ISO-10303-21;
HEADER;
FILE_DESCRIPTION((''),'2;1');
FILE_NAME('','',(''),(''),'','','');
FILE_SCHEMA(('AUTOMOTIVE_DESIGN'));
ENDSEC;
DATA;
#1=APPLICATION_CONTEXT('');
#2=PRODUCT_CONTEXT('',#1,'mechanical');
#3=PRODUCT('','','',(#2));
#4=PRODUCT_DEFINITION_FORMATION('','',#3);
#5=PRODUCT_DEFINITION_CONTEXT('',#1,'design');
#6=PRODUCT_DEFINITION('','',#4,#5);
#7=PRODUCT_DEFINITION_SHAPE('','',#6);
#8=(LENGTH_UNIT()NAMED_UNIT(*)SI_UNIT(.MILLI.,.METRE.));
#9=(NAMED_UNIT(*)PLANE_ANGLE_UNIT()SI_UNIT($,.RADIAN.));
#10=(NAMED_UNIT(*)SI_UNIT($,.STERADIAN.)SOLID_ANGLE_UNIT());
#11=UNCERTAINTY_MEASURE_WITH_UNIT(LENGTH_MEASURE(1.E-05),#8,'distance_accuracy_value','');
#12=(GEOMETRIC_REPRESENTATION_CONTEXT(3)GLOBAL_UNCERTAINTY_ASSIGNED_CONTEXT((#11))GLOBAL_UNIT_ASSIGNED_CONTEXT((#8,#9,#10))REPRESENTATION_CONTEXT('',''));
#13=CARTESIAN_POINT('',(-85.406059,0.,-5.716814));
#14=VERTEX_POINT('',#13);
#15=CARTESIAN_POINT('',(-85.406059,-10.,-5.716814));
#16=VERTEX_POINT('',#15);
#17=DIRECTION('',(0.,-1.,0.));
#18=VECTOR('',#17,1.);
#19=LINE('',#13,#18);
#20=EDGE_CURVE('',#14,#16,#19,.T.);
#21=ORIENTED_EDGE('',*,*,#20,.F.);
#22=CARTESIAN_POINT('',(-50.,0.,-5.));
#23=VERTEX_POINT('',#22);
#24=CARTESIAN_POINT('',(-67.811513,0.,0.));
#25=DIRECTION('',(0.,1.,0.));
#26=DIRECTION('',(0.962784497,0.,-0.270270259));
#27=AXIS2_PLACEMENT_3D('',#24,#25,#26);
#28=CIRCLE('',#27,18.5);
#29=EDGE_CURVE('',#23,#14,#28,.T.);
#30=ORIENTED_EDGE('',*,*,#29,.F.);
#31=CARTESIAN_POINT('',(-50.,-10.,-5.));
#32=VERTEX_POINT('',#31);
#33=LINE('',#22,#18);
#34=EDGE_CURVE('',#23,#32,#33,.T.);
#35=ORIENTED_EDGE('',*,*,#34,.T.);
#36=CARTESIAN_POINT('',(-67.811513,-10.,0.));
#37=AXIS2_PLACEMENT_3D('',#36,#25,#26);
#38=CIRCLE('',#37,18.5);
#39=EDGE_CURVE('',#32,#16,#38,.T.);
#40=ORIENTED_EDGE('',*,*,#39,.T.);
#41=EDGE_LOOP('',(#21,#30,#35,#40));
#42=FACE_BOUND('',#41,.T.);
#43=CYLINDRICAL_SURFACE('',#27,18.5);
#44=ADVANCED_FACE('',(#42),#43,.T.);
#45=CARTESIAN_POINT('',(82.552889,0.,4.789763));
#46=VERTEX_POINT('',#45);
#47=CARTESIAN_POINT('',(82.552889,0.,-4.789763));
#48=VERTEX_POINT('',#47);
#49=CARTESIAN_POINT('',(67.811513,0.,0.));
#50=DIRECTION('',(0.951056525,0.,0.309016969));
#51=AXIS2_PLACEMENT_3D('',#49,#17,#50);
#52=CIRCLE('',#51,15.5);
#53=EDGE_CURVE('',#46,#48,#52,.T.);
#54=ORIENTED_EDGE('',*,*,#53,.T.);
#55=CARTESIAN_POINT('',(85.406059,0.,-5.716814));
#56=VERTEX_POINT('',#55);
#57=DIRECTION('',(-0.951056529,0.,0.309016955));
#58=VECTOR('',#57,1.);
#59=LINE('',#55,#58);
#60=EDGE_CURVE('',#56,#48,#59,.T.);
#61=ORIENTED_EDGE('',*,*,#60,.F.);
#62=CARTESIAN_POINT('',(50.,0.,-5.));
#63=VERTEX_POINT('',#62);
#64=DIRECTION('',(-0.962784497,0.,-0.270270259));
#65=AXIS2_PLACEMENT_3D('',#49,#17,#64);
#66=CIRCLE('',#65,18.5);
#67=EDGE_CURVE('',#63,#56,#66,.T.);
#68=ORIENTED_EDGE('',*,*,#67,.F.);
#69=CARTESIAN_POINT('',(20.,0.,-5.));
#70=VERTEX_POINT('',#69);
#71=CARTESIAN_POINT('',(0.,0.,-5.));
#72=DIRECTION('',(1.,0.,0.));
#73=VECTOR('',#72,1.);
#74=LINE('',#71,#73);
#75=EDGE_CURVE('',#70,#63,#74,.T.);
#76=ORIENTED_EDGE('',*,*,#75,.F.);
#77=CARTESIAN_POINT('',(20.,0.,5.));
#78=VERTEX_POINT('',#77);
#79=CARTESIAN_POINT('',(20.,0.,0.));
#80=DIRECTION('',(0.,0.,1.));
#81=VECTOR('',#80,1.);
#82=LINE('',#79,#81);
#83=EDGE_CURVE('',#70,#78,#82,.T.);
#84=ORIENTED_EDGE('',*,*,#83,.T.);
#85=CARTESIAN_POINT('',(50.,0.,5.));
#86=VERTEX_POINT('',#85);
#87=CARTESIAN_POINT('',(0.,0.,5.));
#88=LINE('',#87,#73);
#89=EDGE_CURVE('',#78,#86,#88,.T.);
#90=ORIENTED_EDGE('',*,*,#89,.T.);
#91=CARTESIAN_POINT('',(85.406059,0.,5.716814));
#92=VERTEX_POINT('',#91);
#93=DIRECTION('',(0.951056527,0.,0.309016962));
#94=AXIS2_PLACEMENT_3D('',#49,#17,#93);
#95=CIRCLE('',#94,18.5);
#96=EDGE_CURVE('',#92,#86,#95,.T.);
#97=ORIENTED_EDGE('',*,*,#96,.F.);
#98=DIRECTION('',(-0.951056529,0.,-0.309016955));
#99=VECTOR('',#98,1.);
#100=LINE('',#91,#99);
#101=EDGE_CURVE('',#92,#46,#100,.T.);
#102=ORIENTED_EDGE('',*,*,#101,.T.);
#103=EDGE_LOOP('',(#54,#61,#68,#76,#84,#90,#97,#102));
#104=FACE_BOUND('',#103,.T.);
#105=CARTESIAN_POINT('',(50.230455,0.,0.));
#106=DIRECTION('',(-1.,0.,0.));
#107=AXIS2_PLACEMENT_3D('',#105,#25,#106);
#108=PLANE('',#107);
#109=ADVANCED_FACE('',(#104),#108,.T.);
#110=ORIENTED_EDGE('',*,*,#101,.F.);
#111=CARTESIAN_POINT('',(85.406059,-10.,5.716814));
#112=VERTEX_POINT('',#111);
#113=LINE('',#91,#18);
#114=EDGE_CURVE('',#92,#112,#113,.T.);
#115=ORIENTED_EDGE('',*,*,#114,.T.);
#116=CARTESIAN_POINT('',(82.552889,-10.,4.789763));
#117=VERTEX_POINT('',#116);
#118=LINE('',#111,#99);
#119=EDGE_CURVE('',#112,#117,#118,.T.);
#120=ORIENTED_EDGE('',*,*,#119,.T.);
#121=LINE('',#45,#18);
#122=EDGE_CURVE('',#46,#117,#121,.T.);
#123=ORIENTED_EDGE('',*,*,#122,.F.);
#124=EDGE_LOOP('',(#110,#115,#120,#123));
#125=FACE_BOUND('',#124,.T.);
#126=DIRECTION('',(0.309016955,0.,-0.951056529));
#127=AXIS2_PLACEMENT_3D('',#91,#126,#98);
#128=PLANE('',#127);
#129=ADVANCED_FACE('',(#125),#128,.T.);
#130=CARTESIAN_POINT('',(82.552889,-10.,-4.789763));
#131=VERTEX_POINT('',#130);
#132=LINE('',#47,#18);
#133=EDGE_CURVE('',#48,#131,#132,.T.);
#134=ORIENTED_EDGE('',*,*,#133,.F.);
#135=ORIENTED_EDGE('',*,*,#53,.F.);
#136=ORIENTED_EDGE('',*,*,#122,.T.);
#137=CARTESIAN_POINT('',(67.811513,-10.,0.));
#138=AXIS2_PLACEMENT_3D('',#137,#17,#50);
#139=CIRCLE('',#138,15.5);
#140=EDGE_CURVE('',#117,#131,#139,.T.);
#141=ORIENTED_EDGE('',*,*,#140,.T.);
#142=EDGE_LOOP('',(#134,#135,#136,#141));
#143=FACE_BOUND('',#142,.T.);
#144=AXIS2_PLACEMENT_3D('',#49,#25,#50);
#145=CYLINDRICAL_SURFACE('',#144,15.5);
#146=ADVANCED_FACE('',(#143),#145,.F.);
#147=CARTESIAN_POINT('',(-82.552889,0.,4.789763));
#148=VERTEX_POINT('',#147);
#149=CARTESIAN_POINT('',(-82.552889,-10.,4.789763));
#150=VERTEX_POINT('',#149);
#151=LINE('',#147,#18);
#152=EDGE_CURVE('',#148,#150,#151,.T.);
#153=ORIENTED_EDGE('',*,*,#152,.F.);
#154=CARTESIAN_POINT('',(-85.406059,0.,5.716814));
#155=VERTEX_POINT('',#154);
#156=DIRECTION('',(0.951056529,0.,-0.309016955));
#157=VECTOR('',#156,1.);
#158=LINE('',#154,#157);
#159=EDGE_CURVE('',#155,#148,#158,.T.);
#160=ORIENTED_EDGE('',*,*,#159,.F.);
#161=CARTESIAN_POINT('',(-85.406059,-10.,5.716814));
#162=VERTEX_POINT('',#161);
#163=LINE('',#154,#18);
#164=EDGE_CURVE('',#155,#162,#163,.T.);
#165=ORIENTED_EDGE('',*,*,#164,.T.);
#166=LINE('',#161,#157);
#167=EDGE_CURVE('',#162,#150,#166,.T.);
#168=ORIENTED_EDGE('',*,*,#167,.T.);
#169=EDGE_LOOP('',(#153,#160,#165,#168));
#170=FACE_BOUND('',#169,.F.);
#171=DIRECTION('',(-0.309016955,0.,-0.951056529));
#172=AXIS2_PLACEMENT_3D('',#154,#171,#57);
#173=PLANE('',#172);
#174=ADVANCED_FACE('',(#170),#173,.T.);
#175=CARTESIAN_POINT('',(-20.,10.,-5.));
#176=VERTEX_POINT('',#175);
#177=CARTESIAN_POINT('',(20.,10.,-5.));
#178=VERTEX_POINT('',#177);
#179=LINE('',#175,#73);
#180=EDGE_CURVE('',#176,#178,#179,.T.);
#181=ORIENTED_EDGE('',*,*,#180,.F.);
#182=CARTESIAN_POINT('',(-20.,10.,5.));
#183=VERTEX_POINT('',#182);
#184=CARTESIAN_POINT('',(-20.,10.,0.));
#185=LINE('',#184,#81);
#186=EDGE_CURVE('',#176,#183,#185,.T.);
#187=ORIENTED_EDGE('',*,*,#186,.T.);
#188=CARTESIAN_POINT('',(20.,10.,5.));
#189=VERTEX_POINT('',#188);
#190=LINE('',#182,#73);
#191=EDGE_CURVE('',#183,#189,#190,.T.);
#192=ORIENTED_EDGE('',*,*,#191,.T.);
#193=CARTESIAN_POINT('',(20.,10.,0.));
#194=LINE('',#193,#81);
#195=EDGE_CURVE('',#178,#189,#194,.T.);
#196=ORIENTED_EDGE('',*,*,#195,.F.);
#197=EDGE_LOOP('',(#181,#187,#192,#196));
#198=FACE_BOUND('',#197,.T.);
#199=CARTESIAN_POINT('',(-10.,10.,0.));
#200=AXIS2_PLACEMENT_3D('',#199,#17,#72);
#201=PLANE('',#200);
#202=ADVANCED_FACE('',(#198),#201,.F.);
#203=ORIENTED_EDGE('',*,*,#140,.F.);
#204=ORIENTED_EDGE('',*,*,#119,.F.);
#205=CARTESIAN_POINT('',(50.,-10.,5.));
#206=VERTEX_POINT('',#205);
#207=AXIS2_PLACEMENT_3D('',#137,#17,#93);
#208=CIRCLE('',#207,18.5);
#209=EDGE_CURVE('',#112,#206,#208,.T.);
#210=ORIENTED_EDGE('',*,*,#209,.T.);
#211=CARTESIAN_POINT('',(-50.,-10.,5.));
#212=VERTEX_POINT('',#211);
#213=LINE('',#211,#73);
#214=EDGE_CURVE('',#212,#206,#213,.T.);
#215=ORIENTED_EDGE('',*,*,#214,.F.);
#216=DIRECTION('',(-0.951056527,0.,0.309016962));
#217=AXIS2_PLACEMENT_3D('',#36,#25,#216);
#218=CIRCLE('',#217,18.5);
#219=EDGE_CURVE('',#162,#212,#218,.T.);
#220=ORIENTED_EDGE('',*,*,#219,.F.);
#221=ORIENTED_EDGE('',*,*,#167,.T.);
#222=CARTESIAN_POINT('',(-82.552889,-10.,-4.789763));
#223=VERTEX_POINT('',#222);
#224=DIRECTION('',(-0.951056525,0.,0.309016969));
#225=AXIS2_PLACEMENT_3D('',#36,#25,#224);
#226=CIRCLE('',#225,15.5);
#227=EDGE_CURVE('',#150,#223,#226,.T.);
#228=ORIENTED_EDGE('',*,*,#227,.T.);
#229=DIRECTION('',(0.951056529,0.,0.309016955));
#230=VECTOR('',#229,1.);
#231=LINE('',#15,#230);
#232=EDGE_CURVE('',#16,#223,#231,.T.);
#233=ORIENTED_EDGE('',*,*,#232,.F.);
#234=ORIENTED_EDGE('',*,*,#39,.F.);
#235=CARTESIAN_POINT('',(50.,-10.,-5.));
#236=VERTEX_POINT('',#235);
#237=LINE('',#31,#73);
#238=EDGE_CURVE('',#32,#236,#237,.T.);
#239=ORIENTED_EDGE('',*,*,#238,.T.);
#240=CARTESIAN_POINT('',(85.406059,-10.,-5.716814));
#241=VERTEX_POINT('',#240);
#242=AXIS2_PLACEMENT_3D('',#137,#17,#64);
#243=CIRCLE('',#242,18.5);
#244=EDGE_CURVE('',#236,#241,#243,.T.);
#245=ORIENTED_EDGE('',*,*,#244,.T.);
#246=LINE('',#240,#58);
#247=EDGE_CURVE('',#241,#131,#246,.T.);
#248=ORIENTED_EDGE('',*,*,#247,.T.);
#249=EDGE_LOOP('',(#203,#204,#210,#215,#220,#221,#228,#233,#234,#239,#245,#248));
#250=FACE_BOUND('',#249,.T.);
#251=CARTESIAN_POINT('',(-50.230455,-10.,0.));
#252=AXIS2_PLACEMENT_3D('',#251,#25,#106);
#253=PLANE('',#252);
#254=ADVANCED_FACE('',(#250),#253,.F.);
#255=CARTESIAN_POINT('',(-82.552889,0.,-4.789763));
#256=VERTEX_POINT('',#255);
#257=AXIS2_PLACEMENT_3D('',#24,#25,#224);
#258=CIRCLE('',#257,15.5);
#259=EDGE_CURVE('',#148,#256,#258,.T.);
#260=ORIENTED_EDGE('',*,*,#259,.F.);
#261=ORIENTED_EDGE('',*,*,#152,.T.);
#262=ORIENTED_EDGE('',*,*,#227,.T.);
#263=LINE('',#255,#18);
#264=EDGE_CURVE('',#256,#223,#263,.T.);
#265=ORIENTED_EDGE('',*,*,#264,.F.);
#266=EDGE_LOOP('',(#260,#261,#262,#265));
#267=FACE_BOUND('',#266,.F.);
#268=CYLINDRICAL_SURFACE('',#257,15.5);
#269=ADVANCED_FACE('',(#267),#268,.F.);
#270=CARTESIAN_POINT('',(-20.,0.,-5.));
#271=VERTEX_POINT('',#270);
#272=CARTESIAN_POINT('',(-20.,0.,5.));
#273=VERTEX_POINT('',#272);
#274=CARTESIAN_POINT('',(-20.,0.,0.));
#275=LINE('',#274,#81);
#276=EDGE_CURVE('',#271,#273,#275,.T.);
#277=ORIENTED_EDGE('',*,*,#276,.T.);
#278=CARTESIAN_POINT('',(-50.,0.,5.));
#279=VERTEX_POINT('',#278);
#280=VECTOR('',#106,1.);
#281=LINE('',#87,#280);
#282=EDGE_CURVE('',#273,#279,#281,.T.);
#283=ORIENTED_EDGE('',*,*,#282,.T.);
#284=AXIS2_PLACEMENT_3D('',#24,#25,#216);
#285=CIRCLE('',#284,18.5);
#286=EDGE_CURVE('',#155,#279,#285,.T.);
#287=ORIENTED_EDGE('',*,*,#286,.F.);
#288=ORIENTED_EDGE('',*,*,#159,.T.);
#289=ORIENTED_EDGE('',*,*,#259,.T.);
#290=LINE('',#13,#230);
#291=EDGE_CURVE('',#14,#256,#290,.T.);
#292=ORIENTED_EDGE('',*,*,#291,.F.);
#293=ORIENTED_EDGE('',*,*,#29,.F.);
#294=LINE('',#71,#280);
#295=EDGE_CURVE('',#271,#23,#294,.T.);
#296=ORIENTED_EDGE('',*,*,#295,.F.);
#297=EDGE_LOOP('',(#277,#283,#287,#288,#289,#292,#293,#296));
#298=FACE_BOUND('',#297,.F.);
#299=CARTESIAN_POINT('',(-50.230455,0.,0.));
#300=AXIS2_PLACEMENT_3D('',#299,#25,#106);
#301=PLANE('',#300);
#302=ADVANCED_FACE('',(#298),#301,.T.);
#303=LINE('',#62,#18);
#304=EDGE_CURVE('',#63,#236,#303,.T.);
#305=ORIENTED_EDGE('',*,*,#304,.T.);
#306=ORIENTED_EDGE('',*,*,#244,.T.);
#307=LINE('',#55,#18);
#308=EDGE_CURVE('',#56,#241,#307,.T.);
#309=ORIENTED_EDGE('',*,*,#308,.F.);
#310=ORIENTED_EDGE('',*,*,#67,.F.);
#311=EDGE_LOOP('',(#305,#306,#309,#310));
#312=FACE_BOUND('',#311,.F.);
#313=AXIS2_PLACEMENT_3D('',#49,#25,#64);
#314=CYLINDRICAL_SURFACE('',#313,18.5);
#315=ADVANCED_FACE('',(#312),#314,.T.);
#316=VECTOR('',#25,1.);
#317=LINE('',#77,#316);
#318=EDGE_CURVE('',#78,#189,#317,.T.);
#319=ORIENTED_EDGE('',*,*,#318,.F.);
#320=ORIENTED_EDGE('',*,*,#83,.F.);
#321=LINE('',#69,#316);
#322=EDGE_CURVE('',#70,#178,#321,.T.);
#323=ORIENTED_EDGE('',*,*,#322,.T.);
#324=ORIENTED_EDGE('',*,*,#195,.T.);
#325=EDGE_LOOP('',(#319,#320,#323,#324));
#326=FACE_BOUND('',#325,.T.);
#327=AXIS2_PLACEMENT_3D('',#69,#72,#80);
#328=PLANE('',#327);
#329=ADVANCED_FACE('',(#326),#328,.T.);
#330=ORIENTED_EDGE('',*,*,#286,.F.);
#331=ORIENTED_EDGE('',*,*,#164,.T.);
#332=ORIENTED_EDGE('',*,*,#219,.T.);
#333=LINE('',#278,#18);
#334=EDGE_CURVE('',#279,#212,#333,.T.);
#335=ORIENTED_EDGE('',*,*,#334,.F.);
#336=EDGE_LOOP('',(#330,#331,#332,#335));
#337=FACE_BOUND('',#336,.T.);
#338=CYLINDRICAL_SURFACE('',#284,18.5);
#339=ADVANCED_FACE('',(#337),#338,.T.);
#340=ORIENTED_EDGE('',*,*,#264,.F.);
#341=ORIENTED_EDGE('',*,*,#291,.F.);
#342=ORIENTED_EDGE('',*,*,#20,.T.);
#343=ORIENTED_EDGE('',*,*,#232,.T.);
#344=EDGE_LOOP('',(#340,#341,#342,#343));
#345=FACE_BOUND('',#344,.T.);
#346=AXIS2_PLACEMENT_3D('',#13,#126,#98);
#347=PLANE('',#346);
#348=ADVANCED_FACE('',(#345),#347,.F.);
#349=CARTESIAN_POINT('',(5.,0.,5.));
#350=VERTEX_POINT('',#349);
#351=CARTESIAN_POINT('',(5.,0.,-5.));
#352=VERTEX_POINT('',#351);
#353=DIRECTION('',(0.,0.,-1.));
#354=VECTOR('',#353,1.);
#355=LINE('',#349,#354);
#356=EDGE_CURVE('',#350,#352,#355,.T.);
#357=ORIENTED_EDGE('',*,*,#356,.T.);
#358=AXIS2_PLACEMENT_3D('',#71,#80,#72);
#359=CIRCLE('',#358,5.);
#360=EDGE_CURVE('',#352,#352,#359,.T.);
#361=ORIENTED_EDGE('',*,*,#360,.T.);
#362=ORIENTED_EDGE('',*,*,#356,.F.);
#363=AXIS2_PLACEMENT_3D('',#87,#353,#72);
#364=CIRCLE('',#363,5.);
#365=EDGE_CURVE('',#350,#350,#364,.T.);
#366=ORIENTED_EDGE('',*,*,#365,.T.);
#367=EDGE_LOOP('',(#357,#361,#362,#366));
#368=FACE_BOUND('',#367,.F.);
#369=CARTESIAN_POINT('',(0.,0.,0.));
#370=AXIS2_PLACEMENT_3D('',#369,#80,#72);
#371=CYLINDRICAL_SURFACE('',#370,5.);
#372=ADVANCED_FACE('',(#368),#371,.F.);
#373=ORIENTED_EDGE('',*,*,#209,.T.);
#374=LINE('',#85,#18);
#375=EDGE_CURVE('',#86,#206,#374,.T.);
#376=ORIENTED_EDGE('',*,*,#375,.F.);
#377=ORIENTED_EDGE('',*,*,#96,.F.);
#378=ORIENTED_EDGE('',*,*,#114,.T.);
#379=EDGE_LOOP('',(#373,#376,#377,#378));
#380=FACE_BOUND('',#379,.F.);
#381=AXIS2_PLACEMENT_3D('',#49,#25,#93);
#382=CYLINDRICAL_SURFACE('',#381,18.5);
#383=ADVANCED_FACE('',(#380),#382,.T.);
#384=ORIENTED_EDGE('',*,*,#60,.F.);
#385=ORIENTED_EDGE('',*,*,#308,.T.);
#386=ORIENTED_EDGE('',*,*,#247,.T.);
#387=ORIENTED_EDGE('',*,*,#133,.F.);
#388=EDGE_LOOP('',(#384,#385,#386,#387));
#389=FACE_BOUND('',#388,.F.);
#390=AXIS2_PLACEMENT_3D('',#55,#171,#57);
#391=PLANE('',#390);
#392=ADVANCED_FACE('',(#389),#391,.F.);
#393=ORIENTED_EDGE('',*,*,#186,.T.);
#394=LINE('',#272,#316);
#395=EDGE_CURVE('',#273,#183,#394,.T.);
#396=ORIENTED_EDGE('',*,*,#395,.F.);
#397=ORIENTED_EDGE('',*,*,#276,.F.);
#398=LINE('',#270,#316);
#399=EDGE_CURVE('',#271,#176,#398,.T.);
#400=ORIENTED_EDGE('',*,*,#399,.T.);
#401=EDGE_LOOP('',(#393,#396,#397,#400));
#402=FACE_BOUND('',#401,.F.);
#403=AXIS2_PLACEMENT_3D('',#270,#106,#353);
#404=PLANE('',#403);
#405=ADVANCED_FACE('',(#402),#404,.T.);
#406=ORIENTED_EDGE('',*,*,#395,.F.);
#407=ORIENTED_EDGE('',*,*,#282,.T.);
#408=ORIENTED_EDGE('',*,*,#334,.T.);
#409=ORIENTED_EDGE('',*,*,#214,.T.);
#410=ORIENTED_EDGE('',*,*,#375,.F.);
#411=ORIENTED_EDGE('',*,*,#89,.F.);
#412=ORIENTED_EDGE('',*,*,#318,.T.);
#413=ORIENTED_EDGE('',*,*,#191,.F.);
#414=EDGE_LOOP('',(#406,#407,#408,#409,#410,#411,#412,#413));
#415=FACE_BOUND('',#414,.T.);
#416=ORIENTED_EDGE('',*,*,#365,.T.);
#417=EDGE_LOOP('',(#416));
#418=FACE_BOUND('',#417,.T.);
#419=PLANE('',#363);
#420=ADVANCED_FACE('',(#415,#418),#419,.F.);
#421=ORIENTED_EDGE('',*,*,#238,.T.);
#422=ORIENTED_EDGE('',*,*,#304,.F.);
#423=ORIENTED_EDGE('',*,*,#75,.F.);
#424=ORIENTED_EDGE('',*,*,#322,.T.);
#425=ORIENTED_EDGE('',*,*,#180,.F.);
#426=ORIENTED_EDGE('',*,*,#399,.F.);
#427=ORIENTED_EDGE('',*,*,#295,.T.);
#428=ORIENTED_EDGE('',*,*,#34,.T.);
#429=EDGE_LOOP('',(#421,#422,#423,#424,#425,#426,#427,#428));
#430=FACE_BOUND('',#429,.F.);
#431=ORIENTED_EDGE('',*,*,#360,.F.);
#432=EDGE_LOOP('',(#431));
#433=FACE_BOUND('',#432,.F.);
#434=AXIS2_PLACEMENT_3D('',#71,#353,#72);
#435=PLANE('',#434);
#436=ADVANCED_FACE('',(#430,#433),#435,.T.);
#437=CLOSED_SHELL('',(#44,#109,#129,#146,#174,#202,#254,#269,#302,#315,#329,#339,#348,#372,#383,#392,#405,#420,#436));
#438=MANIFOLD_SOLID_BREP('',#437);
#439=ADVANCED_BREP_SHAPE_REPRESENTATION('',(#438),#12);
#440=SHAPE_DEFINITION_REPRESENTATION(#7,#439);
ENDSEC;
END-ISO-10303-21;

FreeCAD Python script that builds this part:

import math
import FreeCAD as App
import Part
import Sketcher
from FreeCAD import Vector
Q = App.Units.Quantity


def add_polygon(sketch, points):
    """Adds a closed chain of lines whose ends are joined by coincident constraints."""
    first, n = sketch.GeometryCount, len(points)
    for a, b in zip(points, points[1:] + points[:1]):
        sketch.addGeometry(Part.LineSegment(App.Vector(*a, 0), App.Vector(*b, 0)), False)
    for i in range(n):
        sketch.addConstraint(Sketcher.Constraint("Coincident", first + i, 2, first + (i + 1) % n, 1))

doc = App.newDocument("Part")
body = doc.addObject("PartDesign::Body", "Body")

# Sketch on XZ plane
sketch1 = body.newObject("Sketcher::SketchObject", "Sketch")
sketch1.AttachmentSupport = (doc.getObject("XZ_Plane"), [""])
sketch1.MapMode = "FlatFace"
sketch1.addGeometry([
    Part.LineSegment(Vector(50, 5, 0), Vector(0, 5, 0)),  # 0
    Part.LineSegment(Vector(0, 5, 0), Vector(0, -5, 0)),  # 1
    Part.LineSegment(Vector(0, -5, 0), Vector(50, -5, 0)),  # 2
    Part.ArcOfCircle(Part.Circle(Vector(67.8, 0, 0), Vector(0, 0, 1), 18.5), math.radians(-164), math.radians(-18)),  # 3
    Part.LineSegment(Vector(85.4, -5.7, 0), Vector(82.6, -4.8, 0)),  # 4
    Part.ArcOfCircle(Part.Circle(Vector(67.8, 0, 0), Vector(0, 0, 1), 15.5), math.radians(18), math.radians(342)),  # 5
    Part.LineSegment(Vector(82.6, 4.8, 0), Vector(85.4, 5.7, 0)),  # 6
    Part.ArcOfCircle(Part.Circle(Vector(67.8, 0, 0), Vector(0, 0, 1), 18.5), math.radians(18), math.radians(164)),  # 7
], False)
sketch1.addConstraint([
    Sketcher.Constraint("Coincident", 0, 2, 1, 1),
    Sketcher.Constraint("Coincident", 1, 2, 2, 1),
    Sketcher.Constraint("Coincident", 2, 2, 3, 1),
    Sketcher.Constraint("Coincident", 3, 2, 4, 1),
    Sketcher.Constraint("Coincident", 4, 2, 5, 2),
    Sketcher.Constraint("Coincident", 5, 1, 6, 1),
    Sketcher.Constraint("Coincident", 6, 2, 7, 1),
    Sketcher.Constraint("Coincident", 7, 2, 0, 1),
    Sketcher.Constraint("Horizontal", 0),
    Sketcher.Constraint("Vertical", 1),
    Sketcher.Constraint("Horizontal", 2),
    Sketcher.Constraint("Coincident", 5, 3, 3, 3),
    Sketcher.Constraint("Coincident", 7, 3, 3, 3),
    Sketcher.Constraint("Equal", 3, 7),
    Sketcher.Constraint("Symmetric", 0, 2, 1, 2, -1, 1),
    Sketcher.Constraint("Symmetric", 4, 2, 5, 1, -1),
    Sketcher.Constraint("Vertical", 3, 2, 6, 2),
    Sketcher.Constraint("Radius", 3, 18.5),
    Sketcher.Constraint("Radius", 5, 15.5),
    Sketcher.Constraint("DistanceX", 0, 2, 0, 1, 50.0),
    Sketcher.Constraint("DistanceY", 1, 2, 1, 1, 10.0),
    Sketcher.Constraint("Angle", 4, Q("162.000002 deg")),
    Sketcher.Constraint("DistanceX", -1, 1, 3, 2, 85.406059),
])
pad1 = body.newObject("PartDesign::Pad", "Pad")
pad1.Profile = sketch1
pad1.Length = 10

# Sketch on XZ plane
sketch2 = body.newObject("Sketcher::SketchObject", "Sketch001")
sketch2.AttachmentSupport = (doc.getObject("XZ_Plane"), [""])
sketch2.MapMode = "FlatFace"
add_polygon(sketch2, [(0, 5), (0, -5), (20, -5), (20, 5)])  # lines 0-3
sketch2.addConstraint([
    Sketcher.Constraint("Vertical", 0),
    Sketcher.Constraint("Horizontal", 1),
    Sketcher.Constraint("Vertical", 2),
    Sketcher.Constraint("Horizontal", 3),
    Sketcher.Constraint("Symmetric", 0, 2, 3, 2, -1, 1),
    Sketcher.Constraint("DistanceX", 1, 1, 1, 2, 20.0),
    Sketcher.Constraint("DistanceY", 0, 2, 0, 1, 10.0),
])
pad2 = body.newObject("PartDesign::Pad", "Pad001")
pad2.Profile = sketch2
pad2.Length = 10
pad2.Reversed = True
doc.recompute()

mirrored = body.newObject("PartDesign::Mirrored", "Mirrored")
mirrored.Originals = [pad1, pad2]
mirrored.MirrorPlane = (doc.getObject("YZ_Plane"), [""])
body.Tip = mirrored

# Sketch on XY plane
sketch3 = body.newObject("Sketcher::SketchObject", "Sketch002")
sketch3.AttachmentSupport = (doc.getObject("XY_Plane"), [""])
sketch3.MapMode = "FlatFace"
sketch3.addGeometry(Part.Circle(Vector(0, 0, 0), Vector(0, 0, 1), 5), False)
sketch3.addConstraint([
    Sketcher.Constraint("Coincident", 0, 3, -1, 1),
    Sketcher.Constraint("Diameter", 0, 10.0),
])
pocket1 = body.newObject("PartDesign::Pocket", "Pocket")
pocket1.Profile = sketch3
pocket1.Type = "ThroughAll"
pocket1.Midplane = True

doc.recompute()
